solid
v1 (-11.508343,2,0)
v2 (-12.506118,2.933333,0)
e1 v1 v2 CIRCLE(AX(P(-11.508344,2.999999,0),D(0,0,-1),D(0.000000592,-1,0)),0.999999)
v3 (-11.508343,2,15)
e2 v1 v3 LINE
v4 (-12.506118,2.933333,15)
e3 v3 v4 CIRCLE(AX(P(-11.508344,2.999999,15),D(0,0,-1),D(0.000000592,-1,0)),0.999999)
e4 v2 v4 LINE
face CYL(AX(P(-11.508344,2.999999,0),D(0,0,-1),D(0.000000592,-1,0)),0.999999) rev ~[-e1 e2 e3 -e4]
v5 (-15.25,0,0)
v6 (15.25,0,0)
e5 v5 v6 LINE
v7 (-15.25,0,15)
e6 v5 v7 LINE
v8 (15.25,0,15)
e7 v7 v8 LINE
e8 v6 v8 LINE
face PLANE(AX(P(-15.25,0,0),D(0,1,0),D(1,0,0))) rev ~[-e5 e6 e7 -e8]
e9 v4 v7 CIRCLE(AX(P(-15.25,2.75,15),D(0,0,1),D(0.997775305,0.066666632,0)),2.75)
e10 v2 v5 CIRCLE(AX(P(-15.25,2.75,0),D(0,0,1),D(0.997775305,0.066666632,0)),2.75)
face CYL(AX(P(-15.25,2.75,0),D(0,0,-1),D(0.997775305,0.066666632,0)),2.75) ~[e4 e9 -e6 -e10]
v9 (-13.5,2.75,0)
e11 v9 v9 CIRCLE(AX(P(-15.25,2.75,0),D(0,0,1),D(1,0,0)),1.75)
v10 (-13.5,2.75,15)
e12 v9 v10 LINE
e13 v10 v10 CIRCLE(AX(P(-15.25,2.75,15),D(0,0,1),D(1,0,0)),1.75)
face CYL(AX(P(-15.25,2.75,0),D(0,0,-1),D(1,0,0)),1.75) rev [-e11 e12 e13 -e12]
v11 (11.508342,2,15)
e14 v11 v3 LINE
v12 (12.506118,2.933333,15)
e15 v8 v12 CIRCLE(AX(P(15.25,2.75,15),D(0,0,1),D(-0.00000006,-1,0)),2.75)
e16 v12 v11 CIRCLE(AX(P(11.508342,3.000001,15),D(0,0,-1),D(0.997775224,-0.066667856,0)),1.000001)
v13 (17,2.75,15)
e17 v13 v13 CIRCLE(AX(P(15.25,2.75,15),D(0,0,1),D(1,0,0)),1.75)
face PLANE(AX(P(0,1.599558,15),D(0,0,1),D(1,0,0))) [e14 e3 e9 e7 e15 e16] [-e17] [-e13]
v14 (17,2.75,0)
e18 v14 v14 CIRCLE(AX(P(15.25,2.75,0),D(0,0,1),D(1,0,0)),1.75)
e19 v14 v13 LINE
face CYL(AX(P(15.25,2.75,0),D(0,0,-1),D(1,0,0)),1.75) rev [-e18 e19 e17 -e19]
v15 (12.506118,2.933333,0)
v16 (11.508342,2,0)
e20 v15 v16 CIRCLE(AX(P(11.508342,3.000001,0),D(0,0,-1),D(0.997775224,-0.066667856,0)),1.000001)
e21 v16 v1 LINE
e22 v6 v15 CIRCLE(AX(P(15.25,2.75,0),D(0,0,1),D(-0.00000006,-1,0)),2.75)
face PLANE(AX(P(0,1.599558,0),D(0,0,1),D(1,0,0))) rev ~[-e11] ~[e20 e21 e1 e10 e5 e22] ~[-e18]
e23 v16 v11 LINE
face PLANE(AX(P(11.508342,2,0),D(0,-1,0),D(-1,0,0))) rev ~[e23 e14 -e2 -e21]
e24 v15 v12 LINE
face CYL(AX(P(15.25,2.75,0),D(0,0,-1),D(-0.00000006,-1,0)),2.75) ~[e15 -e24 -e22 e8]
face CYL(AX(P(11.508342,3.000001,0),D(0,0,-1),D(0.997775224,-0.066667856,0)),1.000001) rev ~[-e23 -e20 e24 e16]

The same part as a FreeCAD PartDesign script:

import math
import FreeCAD as App
import Part
import Sketcher

V = App.Vector
Q = App.Units.Quantity

doc = App.newDocument("Part")
params = doc.addObject("Spreadsheet::Sheet", "Params")
for row, (alias, value) in enumerate([
    ("sketch1_radius", "0.999999 mm"),
    ("sketch1_diameter", "3.5 mm"),
    ("sketch1_radius2", "2.75 mm"),
    ("sketch1_width", "30.5 mm"),
    ("pad1_length", "15 mm"),
], start=1):
    params.set(f"A{row}", alias)
    params.set(f"B{row}", "=" + value)
    params.setAlias(f"B{row}", alias)

body = doc.addObject("PartDesign::Body", "Body")

sketch1 = body.newObject("Sketcher::SketchObject", "Sketch")
sketch1.AttachmentSupport = (doc.getObject("XY_Plane"), [""])
sketch1.MapMode = "FlatFace"
sketch1.addGeometry([
    Part.ArcOfCircle(Part.Circle(V(-11.5, 3, 0), V(0, 0, 1), 1), math.radians(-176), math.radians(-90)),
    Part.ArcOfCircle(Part.Circle(V(-15.2, 2.7, 0), V(0, 0, 1), 2.7), math.radians(4), math.radians(270)),
    Part.LineSegment(V(-15.2, 0, 0), V(15.2, 0, 0)),
    Part.ArcOfCircle(Part.Circle(V(15.3, 2.8, 0), V(0, 0, 1), 2.8), math.radians(-90), math.radians(176)),
    Part.ArcOfCircle(Part.Circle(V(11.5, 3, 0), V(0, 0, 1), 1), math.radians(-90), math.radians(-4)),
    Part.LineSegment(V(11.5, 2, 0), V(-11.5, 2, 0)),
    Part.Circle(V(-15.2, 2.8, 0), V(0, 0, 1), 1.8),
    Part.Circle(V(15.2, 2.8, 0), V(0, 0, 1), 1.8),
], False)
sketch1.addConstraint([
    Sketcher.Constraint("Tangent", 0, 1, 1, 1),
    Sketcher.Constraint("Tangent", 1, 2, 2, 1),
    Sketcher.Constraint("Tangent", 2, 2, 3, 1),
    Sketcher.Constraint("Tangent", 3, 2, 4, 2),
    Sketcher.Constraint("Tangent", 4, 1, 5, 1),
    Sketcher.Constraint("Tangent", 5, 2, 0, 2),
    Sketcher.Constraint("Horizontal", 2),
    Sketcher.Constraint("Horizontal", 5),
    Sketcher.Constraint("Coincident", 6, 3, 1, 3),
    Sketcher.Constraint("Coincident", 7, 3, 3, 3),
    Sketcher.Constraint("Equal", 1, 3),
    Sketcher.Constraint("Equal", 0, 4),
    Sketcher.Constraint("Equal", 6, 7),
    Sketcher.Constraint("Symmetric", 1, 2, 2, 2, -1, 1),
    Sketcher.Constraint("Radius", 0, Q("0.999999 mm")),
    Sketcher.Constraint("Diameter", 6, Q("3.5 mm")),
    Sketcher.Constraint("Radius", 1, Q("2.75 mm")),
    Sketcher.Constraint("DistanceX", 2, 1, 2, 2, Q("30.5 mm")),
    Sketcher.Constraint("DistanceY", -1, 1, 0, 3, Q("2.999999 mm")),
])
sketch1.setExpression("Constraints[14]", "Params.sketch1_radius")
sketch1.setExpression("Constraints[15]", "Params.sketch1_diameter")
sketch1.setExpression("Constraints[16]", "Params.sketch1_radius2")
sketch1.setExpression("Constraints[17]", "Params.sketch1_width")
pad1 = body.newObject("PartDesign::Pad", "Pad")
pad1.Profile = sketch1
pad1.setExpression("Length", "Params.pad1_length")

doc.recompute()
